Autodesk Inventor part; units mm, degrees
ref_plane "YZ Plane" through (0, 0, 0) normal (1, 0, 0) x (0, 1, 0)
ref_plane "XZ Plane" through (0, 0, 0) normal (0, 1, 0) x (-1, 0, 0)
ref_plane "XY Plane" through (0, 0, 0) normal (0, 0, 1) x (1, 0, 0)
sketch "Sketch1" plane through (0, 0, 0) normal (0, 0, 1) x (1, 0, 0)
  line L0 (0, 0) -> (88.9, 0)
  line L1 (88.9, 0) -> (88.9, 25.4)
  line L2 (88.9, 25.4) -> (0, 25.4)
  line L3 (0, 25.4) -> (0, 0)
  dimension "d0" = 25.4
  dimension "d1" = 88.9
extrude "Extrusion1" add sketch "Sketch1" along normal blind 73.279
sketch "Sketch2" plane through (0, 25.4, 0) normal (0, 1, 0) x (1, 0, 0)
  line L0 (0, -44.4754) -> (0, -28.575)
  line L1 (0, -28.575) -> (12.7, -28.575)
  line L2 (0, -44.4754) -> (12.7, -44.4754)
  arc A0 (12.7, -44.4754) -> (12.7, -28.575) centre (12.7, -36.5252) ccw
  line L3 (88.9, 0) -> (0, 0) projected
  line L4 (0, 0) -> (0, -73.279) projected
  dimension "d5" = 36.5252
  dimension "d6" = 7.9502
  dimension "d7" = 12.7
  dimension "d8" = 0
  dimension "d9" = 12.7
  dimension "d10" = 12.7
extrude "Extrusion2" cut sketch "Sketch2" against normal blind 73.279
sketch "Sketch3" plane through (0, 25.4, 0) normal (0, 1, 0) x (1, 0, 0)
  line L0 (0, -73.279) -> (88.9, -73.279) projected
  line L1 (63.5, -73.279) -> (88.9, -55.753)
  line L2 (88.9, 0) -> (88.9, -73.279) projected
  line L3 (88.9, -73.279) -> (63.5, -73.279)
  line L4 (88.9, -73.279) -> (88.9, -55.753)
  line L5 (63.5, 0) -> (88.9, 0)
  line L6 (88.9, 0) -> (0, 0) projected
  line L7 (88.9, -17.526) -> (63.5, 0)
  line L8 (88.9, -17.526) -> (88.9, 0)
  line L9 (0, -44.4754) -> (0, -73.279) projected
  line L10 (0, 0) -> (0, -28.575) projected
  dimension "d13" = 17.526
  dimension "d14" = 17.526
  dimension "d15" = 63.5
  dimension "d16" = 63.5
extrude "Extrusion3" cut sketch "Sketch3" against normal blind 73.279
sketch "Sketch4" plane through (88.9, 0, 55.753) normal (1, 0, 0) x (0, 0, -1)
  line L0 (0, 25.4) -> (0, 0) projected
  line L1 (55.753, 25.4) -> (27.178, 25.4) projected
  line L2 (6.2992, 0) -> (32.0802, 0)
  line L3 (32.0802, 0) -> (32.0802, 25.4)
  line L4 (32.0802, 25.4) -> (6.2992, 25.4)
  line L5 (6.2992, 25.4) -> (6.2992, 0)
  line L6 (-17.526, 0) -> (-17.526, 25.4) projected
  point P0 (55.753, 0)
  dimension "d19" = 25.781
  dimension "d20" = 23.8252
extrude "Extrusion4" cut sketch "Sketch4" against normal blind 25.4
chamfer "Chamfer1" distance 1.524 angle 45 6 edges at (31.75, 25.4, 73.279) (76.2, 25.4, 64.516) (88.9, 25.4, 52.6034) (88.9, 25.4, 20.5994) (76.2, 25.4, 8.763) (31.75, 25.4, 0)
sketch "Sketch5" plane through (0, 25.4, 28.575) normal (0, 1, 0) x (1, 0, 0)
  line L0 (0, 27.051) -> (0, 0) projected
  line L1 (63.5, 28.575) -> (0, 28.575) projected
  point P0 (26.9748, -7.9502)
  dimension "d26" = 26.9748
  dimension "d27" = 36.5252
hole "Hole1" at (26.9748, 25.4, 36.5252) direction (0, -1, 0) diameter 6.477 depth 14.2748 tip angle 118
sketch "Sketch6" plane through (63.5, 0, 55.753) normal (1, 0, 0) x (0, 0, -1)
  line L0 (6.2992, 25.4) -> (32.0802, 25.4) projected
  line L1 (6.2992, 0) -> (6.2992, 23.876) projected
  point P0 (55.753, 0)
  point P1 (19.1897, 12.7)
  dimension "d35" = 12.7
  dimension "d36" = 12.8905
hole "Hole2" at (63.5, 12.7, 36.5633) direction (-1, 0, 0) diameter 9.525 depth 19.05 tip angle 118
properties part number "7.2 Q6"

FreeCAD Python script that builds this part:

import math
import FreeCAD as App
import Part
import Sketcher

V = App.Vector
Q = App.Units.Quantity


def edges_at(feature, points):
    """Names of the edges that pass closest to the given points."""
    edges = feature.Shape.Edges
    near = lambda p: min(range(len(edges)), key=lambda i: edges[i].distToShape(Part.Vertex(*p))[0])
    return sorted({f"Edge{near(p) + 1}" for p in points})

doc = App.newDocument("Part")
body = doc.addObject("PartDesign::Body", "Body")

sketch1 = doc.addObject("Sketcher::SketchObject", "Sketch")
body.addObject(sketch1)
sketch1.AttachmentSupport = (doc.XY_Plane, [""])
sketch1.MapMode = "FlatFace"
sketch1.addGeometry([
    Part.LineSegment(V(0, 25, 0), V(0, 0, 0)),
    Part.LineSegment(V(0, 0, 0), V(89, 0, 0)),
    Part.LineSegment(V(89, 0, 0), V(89, 25, 0)),
    Part.LineSegment(V(89, 25, 0), V(0, 25, 0)),
], False)
sketch1.addConstraint([
    Sketcher.Constraint("Coincident", 0, 2, 1, 1),
    Sketcher.Constraint("Coincident", 1, 2, 2, 1),
    Sketcher.Constraint("Coincident", 2, 2, 3, 1),
    Sketcher.Constraint("Coincident", 3, 2, 0, 1),
    Sketcher.Constraint("Vertical", 0),
    Sketcher.Constraint("Horizontal", 1),
    Sketcher.Constraint("Vertical", 2),
    Sketcher.Constraint("Horizontal", 3),
    Sketcher.Constraint("Coincident", 0, 2, -1, 1),
    Sketcher.Constraint("DistanceY", 0, 2, 0, 1, Q("1 in")),
    Sketcher.Constraint("DistanceX", 1, 1, 1, 2, Q("3.5 in")),
])
pad1 = doc.addObject("PartDesign::Pad", "Pad")
body.addObject(pad1)
pad1.Profile = sketch1
pad1.Length = Q("2.885 in")

sketch2 = doc.addObject("Sketcher::SketchObject", "Sketch001")
body.addObject(sketch2)
sketch2.AttachmentSupport = (doc.XZ_Plane, [""])
sketch2.MapMode = "FlatFace"
sketch2.AttachmentOffset = App.Placement(V(0, 0, -1 * 25.4), App.Rotation())
sketch2.addGeometry([
    Part.LineSegment(V(0, 29, 0), V(0, 44, 0)),
    Part.LineSegment(V(0, 44, 0), V(13, 44, 0)),
    Part.ArcOfCircle(Part.Circle(V(13, 37, 0), V(0, 0, 1), 8), math.radians(-90), math.radians(90)),
    Part.LineSegment(V(13, 29, 0), V(0, 29, 0)),
], False)
sketch2.addConstraint([
    Sketcher.Constraint("Coincident", 0, 2, 1, 1),
    Sketcher.Constraint("Tangent", 1, 2, 2, 2),
    Sketcher.Constraint("Tangent", 2, 1, 3, 1),
    Sketcher.Constraint("Coincident", 3, 2, 0, 1),
    Sketcher.Constraint("Vertical", 0),
    Sketcher.Constraint("Horizontal", 1),
    Sketcher.Constraint("Horizontal", 3),
    Sketcher.Constraint("PointOnObject", 0, 2, -2),
    Sketcher.Constraint("DistanceX", 1, 1, 1, 2, Q("0.5 in")),
    Sketcher.Constraint("Radius", 2, Q("0.313 in")),
    Sketcher.Constraint("DistanceY", -1, 1, 2, 3, Q("1.438 in")),
])
pocket1 = doc.addObject("PartDesign::Pocket", "Pocket")
body.addObject(pocket1)
pocket1.Profile = sketch2
pocket1.Length = Q("2.885 in")
pocket1.Reversed = True

sketch3 = doc.addObject("Sketcher::SketchObject", "Sketch002")
body.addObject(sketch3)
sketch3.AttachmentSupport = (doc.XZ_Plane, [""])
sketch3.MapMode = "FlatFace"
sketch3.AttachmentOffset = App.Placement(V(0, 0, -1 * 25.4), App.Rotation())
sketch3.addGeometry([
    Part.LineSegment(V(89, 56, 0), V(64, 73, 0)),
    Part.LineSegment(V(64, 73, 0), V(89, 73, 0)),
    Part.LineSegment(V(89, 73, 0), V(89, 56, 0)),
    Part.LineSegment(V(64, 0, 0), V(89, 18, 0)),
    Part.LineSegment(V(89, 18, 0), V(89, 0, 0)),
    Part.LineSegment(V(89, 0, 0), V(64, 0, 0)),
], False)
sketch3.addConstraint([
    Sketcher.Constraint("Coincident", 0, 2, 1, 1),
    Sketcher.Constraint("Coincident", 1, 2, 2, 1),
    Sketcher.Constraint("Coincident", 2, 2, 0, 1),
    Sketcher.Constraint("Coincident", 3, 2, 4, 1),
    Sketcher.Constraint("Coincident", 4, 2, 5, 1),
    Sketcher.Constraint("Coincident", 5, 2, 3, 1),
    Sketcher.Constraint("Horizontal", 1),
    Sketcher.Constraint("Vertical", 2),
    Sketcher.Constraint("Vertical", 4),
    Sketcher.Constraint("Horizontal", 5),
    Sketcher.Constraint("PointOnObject", 4, 2, -1),
    Sketcher.Constraint("Vertical", 2, 2, 3, 2),
    Sketcher.Constraint("Vertical", 0, 2, 5, 2),
    Sketcher.Constraint("Equal", 2, 4),
    Sketcher.Constraint("DistanceY", 2, 2, 2, 1, Q("0.69 in")),
    Sketcher.Constraint("DistanceX", -1, 1, 0, 2, Q("2.5 in")),
    Sketcher.Constraint("DistanceX", 1, 1, 1, 2, Q("1 in")),
    Sketcher.Constraint("DistanceY", -1, 1, 0, 2, Q("2.885 in")),
])
pocket2 = doc.addObject("PartDesign::Pocket", "Pocket001")
body.addObject(pocket2)
pocket2.Profile = sketch3
pocket2.Length = Q("2.885 in")
pocket2.Reversed = True

sketch4 = doc.addObject("Sketcher::SketchObject", "Sketch003")
body.addObject(sketch4)
sketch4.AttachmentSupport = (doc.YZ_Plane, [""])
sketch4.MapMode = "FlatFace"
sketch4.AttachmentOffset = App.Placement(V(0, 0, 3.5 * 25.4), App.Rotation())
sketch4.addGeometry([
    Part.LineSegment(V(0, 24, 0), V(25, 24, 0)),
    Part.LineSegment(V(25, 24, 0), V(25, 49, 0)),
    Part.LineSegment(V(25, 49, 0), V(0, 49, 0)),
    Part.LineSegment(V(0, 49, 0), V(0, 24, 0)),
], False)
sketch4.addConstraint([
    Sketcher.Constraint("Coincident", 0, 2, 1, 1),
    Sketcher.Constraint("Coincident", 1, 2, 2, 1),
    Sketcher.Constraint("Coincident", 2, 2, 3, 1),
    Sketcher.Constraint("Coincident", 3, 2, 0, 1),
    Sketcher.Constraint("Horizontal", 0),
    Sketcher.Constraint("Vertical", 1),
    Sketcher.Constraint("Horizontal", 2),
    Sketcher.Constraint("Vertical", 3),
    Sketcher.Constraint("PointOnObject", 2, 2, -2),
    Sketcher.Constraint("DistanceX", 0, 1, 0, 2, Q("1 in")),
    Sketcher.Constraint("DistanceY", 1, 1, 1, 2, Q("1.015 in")),
    Sketcher.Constraint("DistanceY", -1, 1, 0, 2, Q("0.932 in")),
])
pocket3 = doc.addObject("PartDesign::Pocket", "Pocket002")
body.addObject(pocket3)
pocket3.Profile = sketch4
pocket3.Length = Q("1 in")
doc.recompute()

chamfer = doc.addObject("PartDesign::Chamfer", "Chamfer")
body.addObject(chamfer)
chamfer.Base = (pocket3, edges_at(pocket3, [
    (31.75, 25.4, 73.279),
    (76.2, 25.4, 64.516),
    (88.9, 25.4, 52.603),
    (88.9, 25.4, 20.599),
    (76.2, 25.4, 8.763),
    (31.75, 25.4, 0),
]))
chamfer.Size = Q("0.06 in")

sketch5 = doc.addObject("Sketcher::SketchObject", "Sketch004")
body.addObject(sketch5)
sketch5.AttachmentSupport = (doc.XZ_Plane, [""])
sketch5.MapMode = "FlatFace"
sketch5.AttachmentOffset = App.Placement(V(0, 0, -1 * 25.4), App.Rotation())
sketch5.addGeometry(Part.Circle(V(27, 36.5, 0), V(0, 0, 1), 3.2), False)
sketch5.addConstraint([
    Sketcher.Constraint("Diameter", 0, Q("0.255 in")),
    Sketcher.Constraint("DistanceX", -1, 1, 0, 3, Q("1.062 in")),
    Sketcher.Constraint("DistanceY", -1, 1, 0, 3, Q("1.438 in")),
])
doc.recompute()
hole = doc.addObject("PartDesign::Hole", "Hole")
body.addObject(hole)
hole.Profile = sketch5
hole.ThreadType = "None"
hole.Diameter = Q("0.255 in")
hole.DepthType = "Dimension"
hole.Depth = Q("0.562 in")
hole.DrillPoint = "Angled"
hole.DrillPointAngle = 118
hole.Reversed = True

sketch6 = doc.addObject("Sketcher::SketchObject", "Sketch005")
body.addObject(sketch6)
sketch6.AttachmentSupport = (doc.YZ_Plane, [""])
sketch6.MapMode = "FlatFace"
sketch6.AttachmentOffset = App.Placement(V(0, 0, 2.5 * 25.4), App.Rotation())
sketch6.addGeometry(Part.Circle(V(12.7, 36.6, 0), V(0, 0, 1), 4.8), False)
sketch6.addConstraint([
    Sketcher.Constraint("Diameter", 0, Q("0.375 in")),
    Sketcher.Constraint("DistanceX", -1, 1, 0, 3, Q("0.5 in")),
    Sketcher.Constraint("DistanceY", -1, 1, 0, 3, Q("1.4395 in")),
])
doc.recompute()
hole2 = doc.addObject("PartDesign::Hole", "Hole001")
body.addObject(hole2)
hole2.Profile = sketch6
hole2.ThreadType = "None"
hole2.Diameter = Q("0.375 in")
hole2.DepthType = "Dimension"
hole2.Depth = Q("0.75 in")
hole2.DrillPoint = "Angled"
hole2.DrillPointAngle = 118

doc.recompute()
